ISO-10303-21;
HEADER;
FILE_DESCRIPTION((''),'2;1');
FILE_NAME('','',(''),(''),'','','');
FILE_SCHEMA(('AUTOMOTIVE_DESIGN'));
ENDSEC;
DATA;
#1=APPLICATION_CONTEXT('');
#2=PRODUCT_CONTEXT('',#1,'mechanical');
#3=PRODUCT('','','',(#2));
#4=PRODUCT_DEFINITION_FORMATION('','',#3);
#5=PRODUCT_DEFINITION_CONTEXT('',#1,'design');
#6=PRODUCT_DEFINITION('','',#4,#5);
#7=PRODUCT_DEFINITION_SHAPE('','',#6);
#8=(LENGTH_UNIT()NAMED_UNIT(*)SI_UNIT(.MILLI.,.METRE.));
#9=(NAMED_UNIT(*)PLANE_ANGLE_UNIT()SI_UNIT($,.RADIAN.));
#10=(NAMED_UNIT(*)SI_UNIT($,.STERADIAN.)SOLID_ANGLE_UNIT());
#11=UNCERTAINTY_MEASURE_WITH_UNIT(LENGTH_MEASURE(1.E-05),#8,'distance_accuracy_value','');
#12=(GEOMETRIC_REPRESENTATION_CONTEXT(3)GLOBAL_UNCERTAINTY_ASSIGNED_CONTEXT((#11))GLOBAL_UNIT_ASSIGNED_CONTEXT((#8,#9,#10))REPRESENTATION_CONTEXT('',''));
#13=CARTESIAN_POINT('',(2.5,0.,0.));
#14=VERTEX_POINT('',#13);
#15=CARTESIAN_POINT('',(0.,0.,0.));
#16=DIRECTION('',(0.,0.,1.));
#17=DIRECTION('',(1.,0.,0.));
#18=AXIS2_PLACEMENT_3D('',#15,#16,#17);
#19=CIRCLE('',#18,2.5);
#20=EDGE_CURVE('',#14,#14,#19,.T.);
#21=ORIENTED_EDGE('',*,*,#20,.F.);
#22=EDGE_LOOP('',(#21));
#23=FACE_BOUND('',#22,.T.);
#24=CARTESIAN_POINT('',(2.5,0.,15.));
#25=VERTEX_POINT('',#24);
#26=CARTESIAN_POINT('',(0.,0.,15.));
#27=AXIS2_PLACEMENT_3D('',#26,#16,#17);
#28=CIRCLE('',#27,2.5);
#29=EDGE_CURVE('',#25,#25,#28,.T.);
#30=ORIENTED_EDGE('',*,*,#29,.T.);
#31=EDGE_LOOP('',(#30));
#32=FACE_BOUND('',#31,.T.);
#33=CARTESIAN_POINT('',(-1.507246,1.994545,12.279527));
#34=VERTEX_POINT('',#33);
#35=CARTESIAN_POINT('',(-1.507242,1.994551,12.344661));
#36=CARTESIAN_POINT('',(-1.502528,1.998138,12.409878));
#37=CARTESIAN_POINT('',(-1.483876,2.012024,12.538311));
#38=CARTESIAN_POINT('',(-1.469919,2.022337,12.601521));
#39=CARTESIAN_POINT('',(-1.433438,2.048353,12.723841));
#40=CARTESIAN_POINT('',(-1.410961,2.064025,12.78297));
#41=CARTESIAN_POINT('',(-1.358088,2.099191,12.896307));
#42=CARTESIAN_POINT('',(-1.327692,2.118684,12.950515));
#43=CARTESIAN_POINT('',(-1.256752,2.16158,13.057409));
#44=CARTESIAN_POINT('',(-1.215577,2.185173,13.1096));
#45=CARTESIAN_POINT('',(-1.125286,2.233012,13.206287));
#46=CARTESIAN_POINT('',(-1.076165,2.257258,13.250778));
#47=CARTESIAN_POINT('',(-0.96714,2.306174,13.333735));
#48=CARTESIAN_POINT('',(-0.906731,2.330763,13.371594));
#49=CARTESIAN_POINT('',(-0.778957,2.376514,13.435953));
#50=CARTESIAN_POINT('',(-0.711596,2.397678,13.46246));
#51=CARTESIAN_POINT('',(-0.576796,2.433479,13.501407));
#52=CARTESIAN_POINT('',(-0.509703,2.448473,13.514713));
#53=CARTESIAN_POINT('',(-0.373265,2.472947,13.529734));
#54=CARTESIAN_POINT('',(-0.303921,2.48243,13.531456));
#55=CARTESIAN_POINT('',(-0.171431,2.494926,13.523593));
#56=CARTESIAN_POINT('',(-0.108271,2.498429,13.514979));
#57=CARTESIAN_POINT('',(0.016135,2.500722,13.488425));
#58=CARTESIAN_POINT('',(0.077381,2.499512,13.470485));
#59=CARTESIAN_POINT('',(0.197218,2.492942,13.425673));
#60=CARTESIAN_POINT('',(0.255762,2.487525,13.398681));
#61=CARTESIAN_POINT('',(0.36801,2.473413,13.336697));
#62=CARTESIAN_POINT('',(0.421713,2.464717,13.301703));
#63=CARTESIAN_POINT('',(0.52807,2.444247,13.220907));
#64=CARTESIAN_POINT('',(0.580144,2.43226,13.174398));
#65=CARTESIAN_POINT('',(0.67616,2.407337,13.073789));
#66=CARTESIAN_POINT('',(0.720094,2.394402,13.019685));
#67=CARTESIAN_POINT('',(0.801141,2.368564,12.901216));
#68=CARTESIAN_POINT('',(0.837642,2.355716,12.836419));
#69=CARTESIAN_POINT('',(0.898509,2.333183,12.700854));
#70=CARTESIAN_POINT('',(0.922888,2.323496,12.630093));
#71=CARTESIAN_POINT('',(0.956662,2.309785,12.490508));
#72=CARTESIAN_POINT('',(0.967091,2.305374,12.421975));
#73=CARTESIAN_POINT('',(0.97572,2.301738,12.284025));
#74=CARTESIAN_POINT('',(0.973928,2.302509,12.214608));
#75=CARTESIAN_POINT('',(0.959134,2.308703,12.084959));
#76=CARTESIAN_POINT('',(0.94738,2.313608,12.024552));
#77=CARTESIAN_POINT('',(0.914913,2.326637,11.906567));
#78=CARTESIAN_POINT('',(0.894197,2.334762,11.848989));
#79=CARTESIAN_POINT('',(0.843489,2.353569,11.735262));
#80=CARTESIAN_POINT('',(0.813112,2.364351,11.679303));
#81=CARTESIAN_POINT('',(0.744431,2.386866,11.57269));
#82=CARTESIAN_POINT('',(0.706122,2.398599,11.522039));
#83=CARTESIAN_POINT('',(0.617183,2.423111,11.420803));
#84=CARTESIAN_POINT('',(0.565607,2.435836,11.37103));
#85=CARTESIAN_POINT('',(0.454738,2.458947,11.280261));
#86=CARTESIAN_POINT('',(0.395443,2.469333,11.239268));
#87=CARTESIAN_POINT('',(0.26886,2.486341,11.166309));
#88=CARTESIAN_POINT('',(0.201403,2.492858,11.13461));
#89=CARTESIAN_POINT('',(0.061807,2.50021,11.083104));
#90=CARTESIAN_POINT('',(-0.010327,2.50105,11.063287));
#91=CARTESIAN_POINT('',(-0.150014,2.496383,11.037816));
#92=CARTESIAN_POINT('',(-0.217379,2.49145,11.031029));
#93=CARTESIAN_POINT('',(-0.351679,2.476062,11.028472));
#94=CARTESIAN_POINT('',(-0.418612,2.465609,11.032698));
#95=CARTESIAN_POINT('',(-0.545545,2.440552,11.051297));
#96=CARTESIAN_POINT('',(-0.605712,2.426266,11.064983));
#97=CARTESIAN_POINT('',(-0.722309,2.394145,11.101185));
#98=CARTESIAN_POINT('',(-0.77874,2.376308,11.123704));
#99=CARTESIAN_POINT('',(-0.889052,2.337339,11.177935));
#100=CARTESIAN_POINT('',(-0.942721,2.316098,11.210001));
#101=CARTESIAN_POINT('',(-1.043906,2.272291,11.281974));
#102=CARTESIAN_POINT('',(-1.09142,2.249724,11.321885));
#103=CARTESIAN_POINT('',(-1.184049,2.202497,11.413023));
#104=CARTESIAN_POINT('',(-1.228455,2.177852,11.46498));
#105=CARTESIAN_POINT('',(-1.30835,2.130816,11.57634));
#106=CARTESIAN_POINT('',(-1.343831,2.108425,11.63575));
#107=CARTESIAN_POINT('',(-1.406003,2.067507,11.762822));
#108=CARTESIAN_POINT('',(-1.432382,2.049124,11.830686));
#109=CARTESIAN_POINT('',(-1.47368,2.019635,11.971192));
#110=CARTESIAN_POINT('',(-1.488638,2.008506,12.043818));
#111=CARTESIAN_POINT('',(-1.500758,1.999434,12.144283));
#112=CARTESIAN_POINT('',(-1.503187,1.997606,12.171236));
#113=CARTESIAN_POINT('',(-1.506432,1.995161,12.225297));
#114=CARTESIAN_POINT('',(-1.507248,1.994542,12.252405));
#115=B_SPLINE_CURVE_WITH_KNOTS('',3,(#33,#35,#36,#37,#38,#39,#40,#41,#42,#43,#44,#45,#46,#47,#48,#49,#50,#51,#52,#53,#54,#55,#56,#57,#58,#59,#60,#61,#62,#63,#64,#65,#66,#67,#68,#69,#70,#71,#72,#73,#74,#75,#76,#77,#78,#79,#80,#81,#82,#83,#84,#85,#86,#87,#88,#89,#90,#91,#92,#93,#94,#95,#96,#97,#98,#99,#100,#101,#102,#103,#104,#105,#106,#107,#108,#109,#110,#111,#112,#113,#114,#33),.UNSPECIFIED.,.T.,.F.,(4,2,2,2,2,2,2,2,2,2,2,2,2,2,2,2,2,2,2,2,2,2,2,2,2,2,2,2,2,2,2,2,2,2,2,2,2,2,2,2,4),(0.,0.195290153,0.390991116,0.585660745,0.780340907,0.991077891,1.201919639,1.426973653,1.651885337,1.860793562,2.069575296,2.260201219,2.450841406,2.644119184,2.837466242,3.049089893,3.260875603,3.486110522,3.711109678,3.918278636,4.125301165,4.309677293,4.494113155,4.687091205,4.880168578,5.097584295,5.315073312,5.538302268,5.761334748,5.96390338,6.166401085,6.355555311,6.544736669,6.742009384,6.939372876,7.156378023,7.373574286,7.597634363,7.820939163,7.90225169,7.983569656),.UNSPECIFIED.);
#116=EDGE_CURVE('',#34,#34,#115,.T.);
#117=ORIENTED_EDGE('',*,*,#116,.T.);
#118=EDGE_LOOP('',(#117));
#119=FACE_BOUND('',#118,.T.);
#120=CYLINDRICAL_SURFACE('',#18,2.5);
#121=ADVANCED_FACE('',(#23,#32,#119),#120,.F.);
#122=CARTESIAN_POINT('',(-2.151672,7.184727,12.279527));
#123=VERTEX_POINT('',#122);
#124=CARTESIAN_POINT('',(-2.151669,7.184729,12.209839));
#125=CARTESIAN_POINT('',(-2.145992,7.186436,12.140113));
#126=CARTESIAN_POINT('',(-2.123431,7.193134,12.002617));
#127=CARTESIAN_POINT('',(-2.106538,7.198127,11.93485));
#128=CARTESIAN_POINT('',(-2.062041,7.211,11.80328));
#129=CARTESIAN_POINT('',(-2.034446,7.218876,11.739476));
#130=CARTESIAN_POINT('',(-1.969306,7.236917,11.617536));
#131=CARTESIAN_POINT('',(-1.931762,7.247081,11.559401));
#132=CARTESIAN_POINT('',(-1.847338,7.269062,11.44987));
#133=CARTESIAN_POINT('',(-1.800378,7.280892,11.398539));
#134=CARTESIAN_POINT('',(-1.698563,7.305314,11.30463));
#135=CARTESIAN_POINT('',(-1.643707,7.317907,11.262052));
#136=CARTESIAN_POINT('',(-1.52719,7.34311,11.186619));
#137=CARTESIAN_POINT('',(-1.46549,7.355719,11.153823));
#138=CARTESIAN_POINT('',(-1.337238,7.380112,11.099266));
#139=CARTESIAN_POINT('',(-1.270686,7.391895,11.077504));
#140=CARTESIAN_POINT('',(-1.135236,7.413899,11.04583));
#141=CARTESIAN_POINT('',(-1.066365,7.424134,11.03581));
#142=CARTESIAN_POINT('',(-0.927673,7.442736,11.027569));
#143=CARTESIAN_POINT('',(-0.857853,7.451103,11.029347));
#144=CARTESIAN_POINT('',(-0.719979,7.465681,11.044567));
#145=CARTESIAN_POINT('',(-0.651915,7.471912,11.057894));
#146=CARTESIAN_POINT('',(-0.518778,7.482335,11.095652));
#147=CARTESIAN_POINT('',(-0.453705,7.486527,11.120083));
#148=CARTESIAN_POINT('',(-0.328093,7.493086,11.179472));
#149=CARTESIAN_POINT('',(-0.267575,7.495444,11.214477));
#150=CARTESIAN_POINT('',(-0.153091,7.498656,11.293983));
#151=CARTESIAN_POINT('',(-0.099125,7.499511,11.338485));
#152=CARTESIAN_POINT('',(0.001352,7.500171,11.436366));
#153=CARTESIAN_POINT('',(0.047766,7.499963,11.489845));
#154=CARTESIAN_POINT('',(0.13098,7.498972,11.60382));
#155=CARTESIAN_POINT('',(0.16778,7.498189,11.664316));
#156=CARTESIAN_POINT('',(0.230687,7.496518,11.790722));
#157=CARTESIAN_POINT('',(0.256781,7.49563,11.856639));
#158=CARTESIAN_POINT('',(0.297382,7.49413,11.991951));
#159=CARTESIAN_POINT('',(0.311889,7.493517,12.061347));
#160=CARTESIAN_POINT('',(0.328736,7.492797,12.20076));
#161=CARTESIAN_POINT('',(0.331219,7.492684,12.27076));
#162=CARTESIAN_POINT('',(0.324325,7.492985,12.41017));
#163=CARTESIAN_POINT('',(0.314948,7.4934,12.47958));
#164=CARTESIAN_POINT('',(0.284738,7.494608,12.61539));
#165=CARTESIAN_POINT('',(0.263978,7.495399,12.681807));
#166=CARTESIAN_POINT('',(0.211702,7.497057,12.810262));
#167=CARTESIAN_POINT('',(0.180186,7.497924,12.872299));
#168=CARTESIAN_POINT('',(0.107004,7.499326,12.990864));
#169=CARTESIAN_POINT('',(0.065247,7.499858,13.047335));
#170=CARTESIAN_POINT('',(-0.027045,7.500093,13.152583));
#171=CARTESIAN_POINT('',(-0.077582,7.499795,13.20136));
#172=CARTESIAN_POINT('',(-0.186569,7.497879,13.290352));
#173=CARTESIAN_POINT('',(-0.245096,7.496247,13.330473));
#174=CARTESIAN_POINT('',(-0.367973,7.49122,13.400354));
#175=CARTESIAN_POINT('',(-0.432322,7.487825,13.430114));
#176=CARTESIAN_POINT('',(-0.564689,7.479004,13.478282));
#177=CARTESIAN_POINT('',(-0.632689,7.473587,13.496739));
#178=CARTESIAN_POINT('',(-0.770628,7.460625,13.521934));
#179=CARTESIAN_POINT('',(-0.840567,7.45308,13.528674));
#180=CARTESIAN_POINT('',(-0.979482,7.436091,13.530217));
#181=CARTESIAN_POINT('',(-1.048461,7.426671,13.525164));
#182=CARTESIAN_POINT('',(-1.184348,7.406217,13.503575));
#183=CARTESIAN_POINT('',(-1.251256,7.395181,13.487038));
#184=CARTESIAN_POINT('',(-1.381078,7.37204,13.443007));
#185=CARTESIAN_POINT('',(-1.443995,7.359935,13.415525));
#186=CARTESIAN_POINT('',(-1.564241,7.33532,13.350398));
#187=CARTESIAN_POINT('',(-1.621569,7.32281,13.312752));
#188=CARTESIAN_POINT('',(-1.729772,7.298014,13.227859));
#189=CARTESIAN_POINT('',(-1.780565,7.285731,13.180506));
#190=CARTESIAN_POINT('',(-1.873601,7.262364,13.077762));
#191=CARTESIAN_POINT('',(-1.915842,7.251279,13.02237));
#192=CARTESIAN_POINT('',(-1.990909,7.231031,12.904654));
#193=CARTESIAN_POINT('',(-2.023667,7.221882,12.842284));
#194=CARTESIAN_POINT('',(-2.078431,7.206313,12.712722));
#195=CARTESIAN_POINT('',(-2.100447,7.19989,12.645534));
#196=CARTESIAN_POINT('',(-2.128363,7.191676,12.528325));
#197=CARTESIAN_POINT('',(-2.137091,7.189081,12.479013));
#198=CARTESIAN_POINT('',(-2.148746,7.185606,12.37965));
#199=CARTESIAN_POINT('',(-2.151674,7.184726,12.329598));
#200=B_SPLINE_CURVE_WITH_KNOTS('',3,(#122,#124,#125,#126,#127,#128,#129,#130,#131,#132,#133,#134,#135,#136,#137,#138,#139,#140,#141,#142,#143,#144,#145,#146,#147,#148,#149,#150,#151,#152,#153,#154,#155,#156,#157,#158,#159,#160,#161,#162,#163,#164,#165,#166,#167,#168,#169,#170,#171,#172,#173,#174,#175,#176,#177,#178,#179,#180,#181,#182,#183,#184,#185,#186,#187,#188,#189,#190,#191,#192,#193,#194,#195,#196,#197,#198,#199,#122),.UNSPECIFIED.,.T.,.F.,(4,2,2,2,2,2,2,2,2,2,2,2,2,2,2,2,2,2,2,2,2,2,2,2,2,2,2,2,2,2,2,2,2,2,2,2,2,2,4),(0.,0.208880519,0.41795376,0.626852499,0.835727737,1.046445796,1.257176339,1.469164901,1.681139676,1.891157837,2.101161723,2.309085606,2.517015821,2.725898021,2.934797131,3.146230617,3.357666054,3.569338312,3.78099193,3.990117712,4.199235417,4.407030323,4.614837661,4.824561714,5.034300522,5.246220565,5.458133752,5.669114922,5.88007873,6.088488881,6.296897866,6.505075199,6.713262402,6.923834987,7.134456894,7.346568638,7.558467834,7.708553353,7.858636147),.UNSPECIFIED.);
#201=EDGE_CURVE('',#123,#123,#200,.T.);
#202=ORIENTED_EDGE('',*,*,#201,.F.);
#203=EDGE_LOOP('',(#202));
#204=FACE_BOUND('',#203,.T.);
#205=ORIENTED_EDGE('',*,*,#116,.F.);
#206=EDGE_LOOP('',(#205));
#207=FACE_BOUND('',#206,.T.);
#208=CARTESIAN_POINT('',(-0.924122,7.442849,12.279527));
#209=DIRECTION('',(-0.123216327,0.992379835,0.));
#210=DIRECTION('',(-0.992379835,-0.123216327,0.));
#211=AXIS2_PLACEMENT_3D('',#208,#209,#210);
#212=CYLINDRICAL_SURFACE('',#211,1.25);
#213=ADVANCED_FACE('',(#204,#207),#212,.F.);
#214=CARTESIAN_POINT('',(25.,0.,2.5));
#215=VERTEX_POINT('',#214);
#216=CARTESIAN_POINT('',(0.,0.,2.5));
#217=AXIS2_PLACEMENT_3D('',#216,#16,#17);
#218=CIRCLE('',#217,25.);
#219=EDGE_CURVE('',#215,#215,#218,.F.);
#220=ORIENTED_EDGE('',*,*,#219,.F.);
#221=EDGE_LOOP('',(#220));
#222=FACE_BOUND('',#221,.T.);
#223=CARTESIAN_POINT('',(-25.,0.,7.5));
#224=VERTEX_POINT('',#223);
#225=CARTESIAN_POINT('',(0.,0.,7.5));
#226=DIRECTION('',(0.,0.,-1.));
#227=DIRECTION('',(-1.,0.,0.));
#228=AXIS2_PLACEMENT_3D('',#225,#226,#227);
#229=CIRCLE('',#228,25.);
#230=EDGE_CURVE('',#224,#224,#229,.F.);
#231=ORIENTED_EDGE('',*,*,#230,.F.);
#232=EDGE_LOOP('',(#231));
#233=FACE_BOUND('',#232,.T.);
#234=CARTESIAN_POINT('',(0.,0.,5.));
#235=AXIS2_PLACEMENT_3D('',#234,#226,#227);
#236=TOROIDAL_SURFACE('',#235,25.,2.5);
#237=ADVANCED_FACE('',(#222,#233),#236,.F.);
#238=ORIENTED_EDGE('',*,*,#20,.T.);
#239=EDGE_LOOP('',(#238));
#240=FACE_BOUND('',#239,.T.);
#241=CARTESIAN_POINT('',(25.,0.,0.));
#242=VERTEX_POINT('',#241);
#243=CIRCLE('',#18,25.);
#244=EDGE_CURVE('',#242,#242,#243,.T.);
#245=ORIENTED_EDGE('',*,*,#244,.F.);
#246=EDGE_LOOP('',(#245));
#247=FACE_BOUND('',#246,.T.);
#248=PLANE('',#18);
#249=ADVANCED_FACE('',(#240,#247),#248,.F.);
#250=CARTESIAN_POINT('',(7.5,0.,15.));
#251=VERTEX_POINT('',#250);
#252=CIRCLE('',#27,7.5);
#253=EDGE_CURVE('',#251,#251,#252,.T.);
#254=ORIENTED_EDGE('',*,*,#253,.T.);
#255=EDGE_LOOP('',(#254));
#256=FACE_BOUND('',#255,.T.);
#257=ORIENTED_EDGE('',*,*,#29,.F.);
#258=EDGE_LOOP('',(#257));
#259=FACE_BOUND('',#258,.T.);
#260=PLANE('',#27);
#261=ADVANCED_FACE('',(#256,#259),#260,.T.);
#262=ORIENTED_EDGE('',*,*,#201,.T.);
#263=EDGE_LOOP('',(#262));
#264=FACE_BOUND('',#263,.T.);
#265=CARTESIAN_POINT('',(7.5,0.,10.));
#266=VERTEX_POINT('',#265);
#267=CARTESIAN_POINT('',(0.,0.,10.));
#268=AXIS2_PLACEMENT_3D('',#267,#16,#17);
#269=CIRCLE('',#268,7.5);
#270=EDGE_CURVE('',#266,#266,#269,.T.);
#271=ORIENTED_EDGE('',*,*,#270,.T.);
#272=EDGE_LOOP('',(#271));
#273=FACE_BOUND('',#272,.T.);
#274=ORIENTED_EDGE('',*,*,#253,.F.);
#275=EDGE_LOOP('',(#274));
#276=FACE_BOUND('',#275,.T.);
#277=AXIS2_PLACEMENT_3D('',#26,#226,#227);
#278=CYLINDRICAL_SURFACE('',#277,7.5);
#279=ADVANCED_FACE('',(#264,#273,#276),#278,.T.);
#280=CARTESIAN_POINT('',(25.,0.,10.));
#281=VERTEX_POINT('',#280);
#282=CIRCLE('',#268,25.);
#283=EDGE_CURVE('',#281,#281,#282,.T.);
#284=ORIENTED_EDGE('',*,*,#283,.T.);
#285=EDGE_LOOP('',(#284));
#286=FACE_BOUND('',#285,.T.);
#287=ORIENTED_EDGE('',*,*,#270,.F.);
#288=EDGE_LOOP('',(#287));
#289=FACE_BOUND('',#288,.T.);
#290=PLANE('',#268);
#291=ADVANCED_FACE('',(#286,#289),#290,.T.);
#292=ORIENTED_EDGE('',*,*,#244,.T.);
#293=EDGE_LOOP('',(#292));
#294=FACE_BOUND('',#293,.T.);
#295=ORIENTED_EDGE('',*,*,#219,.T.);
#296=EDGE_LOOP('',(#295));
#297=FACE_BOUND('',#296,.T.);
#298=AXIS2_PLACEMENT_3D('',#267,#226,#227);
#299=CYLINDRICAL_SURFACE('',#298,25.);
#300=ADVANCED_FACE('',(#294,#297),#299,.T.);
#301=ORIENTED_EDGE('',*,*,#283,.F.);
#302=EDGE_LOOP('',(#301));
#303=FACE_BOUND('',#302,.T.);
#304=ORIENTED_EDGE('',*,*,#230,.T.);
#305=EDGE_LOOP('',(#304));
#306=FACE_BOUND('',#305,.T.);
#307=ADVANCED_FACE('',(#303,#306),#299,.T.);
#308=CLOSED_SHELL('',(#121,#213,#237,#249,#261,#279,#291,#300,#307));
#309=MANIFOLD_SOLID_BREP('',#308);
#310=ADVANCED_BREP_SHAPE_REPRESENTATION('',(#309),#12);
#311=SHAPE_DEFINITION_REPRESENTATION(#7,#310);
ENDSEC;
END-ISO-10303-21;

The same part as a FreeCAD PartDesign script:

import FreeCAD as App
import Part
import Sketcher
from FreeCAD import Vector
Q = App.Units.Quantity

doc = App.newDocument("Part")
body = doc.addObject("PartDesign::Body", "Body")

sketch1 = doc.addObject("Sketcher::SketchObject", "Sketch")
body.addObject(sketch1)
sketch1.AttachmentSupport = (doc.XY_Plane, [""])
sketch1.MapMode = "FlatFace"
sketch1.addGeometry(Part.Circle(Vector(0, 0, 0), Vector(0, 0, 1), 25), False)
sketch1.addConstraint(Sketcher.Constraint("Coincident", 0, 3, -1, 1))
sketch1.addConstraint(Sketcher.Constraint("Diameter", 0, Q("50 mm")))
pad1 = doc.addObject("PartDesign::Pad", "Pad")
body.addObject(pad1)
pad1.Profile = sketch1
pad1.Length = 10

sketch2 = doc.addObject("Sketcher::SketchObject", "Sketch001")
body.addObject(sketch2)
sketch2.AttachmentSupport = (doc.XZ_Plane, [""])
sketch2.MapMode = "FlatFace"
sketch2.addGeometry(Part.Circle(Vector(-25, 5, 0), Vector(0, 0, 1), 2.5), False)
sketch2.addConstraint(Sketcher.Constraint("Diameter", 0, Q("5 mm")))
sketch2.addConstraint(Sketcher.Constraint("DistanceX", 0, 3, -1, 1, Q("25 mm")))
sketch2.addConstraint(Sketcher.Constraint("DistanceY", -1, 1, 0, 3, Q("5 mm")))
groove = doc.addObject("PartDesign::Groove", "Groove")
body.addObject(groove)
groove.Profile = sketch2
groove.ReferenceAxis = (sketch2, ["V_Axis"])
groove.Angle = 360

sketch3 = doc.addObject("Sketcher::SketchObject", "Sketch002")
body.addObject(sketch3)
sketch3.AttachmentSupport = (doc.XY_Plane, [""])
sketch3.MapMode = "FlatFace"
sketch3.AttachmentOffset = App.Placement(Vector(0, 0, 10), App.Rotation())
sketch3.addGeometry(Part.Circle(Vector(0, 0, 0), Vector(0, 0, 1), 8), False)
sketch3.addConstraint(Sketcher.Constraint("Coincident", 0, 3, -1, 1))
sketch3.addConstraint(Sketcher.Constraint("Diameter", 0, Q("15 mm")))
pad2 = doc.addObject("PartDesign::Pad", "Pad001")
body.addObject(pad2)
pad2.Profile = sketch3
pad2.Length = 5

sketch4 = doc.addObject("Sketcher::SketchObject", "Sketch003")
body.addObject(sketch4)
sketch4.AttachmentSupport = (doc.XY_Plane, [""])
sketch4.MapMode = "FlatFace"
sketch4.AttachmentOffset = App.Placement(Vector(0, 0, 15), App.Rotation())
sketch4.addGeometry(Part.Circle(Vector(0, 0, 0), Vector(0, 0, 1), 2.5), False)
sketch4.addConstraint(Sketcher.Constraint("Coincident", 0, 3, -1, 1))
sketch4.addConstraint(Sketcher.Constraint("Diameter", 0, Q("5 mm")))
pocket1 = doc.addObject("PartDesign::Pocket", "Pocket")
body.addObject(pocket1)
pocket1.Profile = sketch4
pocket1.Type = "ThroughAll"

sketch5 = doc.addObject("Sketcher::SketchObject", "Sketch004")
body.addObject(sketch5)
sketch5.Placement = App.Placement(Vector(-0.924122, 7.442849, 0), App.Rotation(Vector(0.992379835, 0.123216327, 0), Vector(0, 0, -1), Vector(-0.123216327, 0.992379835, 0), "ZXY"))
sketch5.addGeometry(Part.Circle(Vector(0, -12.3, 0), Vector(0, 0, 1), 1.2), False)
sketch5.addConstraint(Sketcher.Constraint("PointOnObject", 0, 3, -2))
sketch5.addConstraint(Sketcher.Constraint("Diameter", 0, Q("2.5 mm")))
sketch5.addConstraint(Sketcher.Constraint("DistanceY", 0, 3, -1, 1, Q("12.279527 mm")))
doc.recompute()
hole = doc.addObject("PartDesign::Hole", "Hole")
body.addObject(hole)
hole.Profile = sketch5
hole.ThreadType = "None"
hole.Diameter = 2.5
hole.DepthType = "Dimension"
hole.Depth = 8.5
hole.DrillPoint = "Angled"
hole.DrillPointAngle = 118

doc.recompute()
